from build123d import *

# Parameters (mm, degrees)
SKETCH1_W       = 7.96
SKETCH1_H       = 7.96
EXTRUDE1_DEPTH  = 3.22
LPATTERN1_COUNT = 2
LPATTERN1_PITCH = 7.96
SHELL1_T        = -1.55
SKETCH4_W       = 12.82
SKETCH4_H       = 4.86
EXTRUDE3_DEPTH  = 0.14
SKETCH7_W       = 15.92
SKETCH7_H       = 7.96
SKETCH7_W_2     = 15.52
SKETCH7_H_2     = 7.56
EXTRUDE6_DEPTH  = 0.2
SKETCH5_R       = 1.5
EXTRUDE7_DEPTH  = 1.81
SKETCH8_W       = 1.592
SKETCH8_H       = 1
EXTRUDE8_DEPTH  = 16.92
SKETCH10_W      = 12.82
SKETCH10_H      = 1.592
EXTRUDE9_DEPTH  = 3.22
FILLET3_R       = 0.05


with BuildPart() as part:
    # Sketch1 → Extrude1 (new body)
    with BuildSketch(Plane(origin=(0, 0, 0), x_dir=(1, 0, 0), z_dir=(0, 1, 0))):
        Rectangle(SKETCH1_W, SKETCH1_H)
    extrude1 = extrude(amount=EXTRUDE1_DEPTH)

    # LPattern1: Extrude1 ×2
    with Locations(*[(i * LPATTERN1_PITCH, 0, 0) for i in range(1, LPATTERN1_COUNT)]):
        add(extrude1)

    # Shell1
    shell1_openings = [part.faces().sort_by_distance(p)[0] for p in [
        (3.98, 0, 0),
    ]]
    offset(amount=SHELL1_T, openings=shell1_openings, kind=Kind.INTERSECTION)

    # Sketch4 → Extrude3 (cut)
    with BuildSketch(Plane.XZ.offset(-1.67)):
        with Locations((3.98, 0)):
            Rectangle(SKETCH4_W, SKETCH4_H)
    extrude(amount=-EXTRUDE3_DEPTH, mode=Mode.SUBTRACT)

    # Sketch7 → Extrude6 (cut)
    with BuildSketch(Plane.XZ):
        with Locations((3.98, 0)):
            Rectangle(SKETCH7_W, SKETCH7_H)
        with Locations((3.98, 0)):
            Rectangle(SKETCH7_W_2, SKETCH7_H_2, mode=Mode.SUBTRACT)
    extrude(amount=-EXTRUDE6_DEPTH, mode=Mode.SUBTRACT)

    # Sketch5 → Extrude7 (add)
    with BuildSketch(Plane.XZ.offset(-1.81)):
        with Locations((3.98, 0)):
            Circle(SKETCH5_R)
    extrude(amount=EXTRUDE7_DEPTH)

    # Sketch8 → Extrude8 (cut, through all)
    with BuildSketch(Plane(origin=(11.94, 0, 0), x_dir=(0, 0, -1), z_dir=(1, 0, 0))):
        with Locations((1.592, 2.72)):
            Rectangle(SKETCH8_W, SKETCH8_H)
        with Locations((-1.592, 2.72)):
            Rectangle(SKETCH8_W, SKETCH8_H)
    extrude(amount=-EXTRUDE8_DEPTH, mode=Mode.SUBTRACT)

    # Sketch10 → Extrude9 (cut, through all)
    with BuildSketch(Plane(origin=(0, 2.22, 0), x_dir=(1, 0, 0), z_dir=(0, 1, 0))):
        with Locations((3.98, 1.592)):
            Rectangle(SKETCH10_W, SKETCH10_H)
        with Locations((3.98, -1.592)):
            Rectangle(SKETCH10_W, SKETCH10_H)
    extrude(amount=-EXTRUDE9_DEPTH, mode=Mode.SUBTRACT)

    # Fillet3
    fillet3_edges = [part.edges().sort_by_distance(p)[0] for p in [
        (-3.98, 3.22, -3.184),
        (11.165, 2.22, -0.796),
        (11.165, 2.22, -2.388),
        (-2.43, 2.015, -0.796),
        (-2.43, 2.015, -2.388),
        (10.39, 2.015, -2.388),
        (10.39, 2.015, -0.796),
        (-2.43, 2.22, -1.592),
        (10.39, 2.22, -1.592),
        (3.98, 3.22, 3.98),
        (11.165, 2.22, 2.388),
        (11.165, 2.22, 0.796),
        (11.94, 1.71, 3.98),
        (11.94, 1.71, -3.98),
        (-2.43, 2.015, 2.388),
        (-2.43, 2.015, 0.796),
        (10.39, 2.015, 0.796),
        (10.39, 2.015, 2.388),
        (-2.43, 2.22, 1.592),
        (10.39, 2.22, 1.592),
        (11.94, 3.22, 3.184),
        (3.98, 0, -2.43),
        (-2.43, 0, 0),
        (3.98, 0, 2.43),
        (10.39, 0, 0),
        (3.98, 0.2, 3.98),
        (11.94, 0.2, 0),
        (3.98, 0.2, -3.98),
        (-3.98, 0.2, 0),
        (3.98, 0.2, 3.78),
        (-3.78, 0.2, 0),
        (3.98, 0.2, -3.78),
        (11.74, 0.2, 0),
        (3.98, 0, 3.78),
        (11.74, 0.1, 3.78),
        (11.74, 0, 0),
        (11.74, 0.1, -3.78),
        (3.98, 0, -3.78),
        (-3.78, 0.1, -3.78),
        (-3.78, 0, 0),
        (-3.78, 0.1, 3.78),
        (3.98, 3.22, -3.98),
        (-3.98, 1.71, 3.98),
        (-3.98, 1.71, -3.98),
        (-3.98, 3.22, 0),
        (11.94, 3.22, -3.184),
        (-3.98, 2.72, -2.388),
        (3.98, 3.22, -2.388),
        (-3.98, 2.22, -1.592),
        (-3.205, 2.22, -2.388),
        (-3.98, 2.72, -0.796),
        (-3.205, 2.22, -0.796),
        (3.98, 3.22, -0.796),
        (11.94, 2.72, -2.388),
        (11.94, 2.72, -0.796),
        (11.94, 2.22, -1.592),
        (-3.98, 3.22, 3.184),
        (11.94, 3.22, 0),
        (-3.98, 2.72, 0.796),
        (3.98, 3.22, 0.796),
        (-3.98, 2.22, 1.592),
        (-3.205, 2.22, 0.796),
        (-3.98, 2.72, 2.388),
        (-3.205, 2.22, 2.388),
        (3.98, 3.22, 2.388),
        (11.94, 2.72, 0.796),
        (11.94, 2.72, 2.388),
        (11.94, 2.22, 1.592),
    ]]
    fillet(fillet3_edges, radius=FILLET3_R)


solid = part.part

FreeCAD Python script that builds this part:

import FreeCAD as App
import Part
import Sketcher


def edges_at(feature, points):
    """Names of the edges that pass closest to the given points."""
    edges = feature.Shape.Edges
    near = lambda p: min(range(len(edges)), key=lambda i: edges[i].distToShape(Part.Vertex(*p))[0])
    return sorted({f"Edge{near(p) + 1}" for p in points})


def faces_at(feature, points):
    """Names of the faces that lie closest to the given points."""
    faces = feature.Shape.Faces
    near = lambda p: min(range(len(faces)), key=lambda i: faces[i].distToShape(Part.Vertex(*p))[0])
    return sorted({f"Face{near(p) + 1}" for p in points})


def add_polygon(sketch, points):
    """Adds a closed chain of lines whose ends are joined by coincident constraints."""
    first, n = sketch.GeometryCount, len(points)
    for a, b in zip(points, points[1:] + points[:1]):
        sketch.addGeometry(Part.LineSegment(App.Vector(*a, 0), App.Vector(*b, 0)), False)
    for i in range(n):
        sketch.addConstraint(Sketcher.Constraint("Coincident", first + i, 2, first + (i + 1) % n, 1))

doc = App.newDocument("Part")
body = doc.addObject("PartDesign::Body", "Body")

# Sketch on XZ plane
sketch1 = body.newObject("Sketcher::SketchObject", "Sketch")
sketch1.AttachmentSupport = (doc.getObject("XZ_Plane"), [""])
sketch1.MapMode = "FlatFace"
add_polygon(sketch1, [(-4, -4), (-4, 4), (4, 4), (4, -4)])  # lines 0-3
sketch1.addConstraint(Sketcher.Constraint("Vertical", 0))
sketch1.addConstraint(Sketcher.Constraint("Horizontal", 1))
sketch1.addConstraint(Sketcher.Constraint("Vertical", 2))
sketch1.addConstraint(Sketcher.Constraint("Horizontal", 3))
sketch1.addConstraint(Sketcher.Constraint("Symmetric", 0, 2, 2, 2, -1, 1))
sketch1.addConstraint(Sketcher.Constraint("Equal", 3, 0))
sketch1.addConstraint(Sketcher.Constraint("DistanceX", 1, 1, 1, 2, 7.96))
pad1 = body.newObject("PartDesign::Pad", "Pad")
pad1.Profile = sketch1
pad1.Length = 3.22
pad1.Reversed = True
doc.recompute()

linearpattern = body.newObject("PartDesign::LinearPattern", "LinearPattern")
linearpattern.Originals = [pad1]
linearpattern.Direction = (doc.getObject("X_Axis"), [""])
linearpattern.Mode = "offset"
linearpattern.Offset = 7.96
linearpattern.Occurrences = 2
body.Tip = linearpattern
doc.recompute()

thickness = body.newObject("PartDesign::Thickness", "Thickness")
thickness.Base = (linearpattern, faces_at(linearpattern, [(3.98, 0, 0)]))
thickness.Value = 1.55
thickness.Reversed = True
thickness.Join = "Intersection"

# Sketch on XZ plane
sketch2 = body.newObject("Sketcher::SketchObject", "Sketch001")
sketch2.AttachmentSupport = (doc.getObject("XZ_Plane"), [""])
sketch2.MapMode = "FlatFace"
sketch2.AttachmentOffset = App.Placement(App.Vector(0, 0, -1.67), App.Rotation())
add_polygon(sketch2, [(-2.4, 2.4), (-2.4, -2.4), (10.4, -2.4), (10.4, 2.4)])  # lines 0-3
sketch2.addConstraint(Sketcher.Constraint("Vertical", 0))
sketch2.addConstraint(Sketcher.Constraint("Horizontal", 1))
sketch2.addConstraint(Sketcher.Constraint("Vertical", 2))
sketch2.addConstraint(Sketcher.Constraint("Horizontal", 3))
sketch2.addConstraint(Sketcher.Constraint("DistanceX", 1, 1, 1, 2, 12.82))
sketch2.addConstraint(Sketcher.Constraint("DistanceY", 0, 2, 0, 1, 4.86))
sketch2.addConstraint(Sketcher.Constraint("DistanceX", 0, 2, -1, 1, 2.43))
sketch2.addConstraint(Sketcher.Constraint("DistanceY", 0, 2, -1, 1, 2.43))
pocket1 = body.newObject("PartDesign::Pocket", "Pocket")
pocket1.Profile = sketch2
pocket1.Length = 0.14

# Sketch on XZ plane
sketch3 = body.newObject("Sketcher::SketchObject", "Sketch002")
sketch3.AttachmentSupport = (doc.getObject("XZ_Plane"), [""])
sketch3.MapMode = "FlatFace"
add_polygon(sketch3, [(-4, 4), (-4, -4), (12, -4), (12, 4)])  # lines 0-3
add_polygon(sketch3, [(12, -4), (-4, -4), (-4, 4), (12, 4)])  # lines 4-7
sketch3.addConstraint(Sketcher.Constraint("Vertical", 0))
sketch3.addConstraint(Sketcher.Constraint("Horizontal", 1))
sketch3.addConstraint(Sketcher.Constraint("Vertical", 2))
sketch3.addConstraint(Sketcher.Constraint("Horizontal", 3))
sketch3.addConstraint(Sketcher.Constraint("Horizontal", 4))
sketch3.addConstraint(Sketcher.Constraint("Vertical", 5))
sketch3.addConstraint(Sketcher.Constraint("Horizontal", 6))
sketch3.addConstraint(Sketcher.Constraint("Vertical", 7))
sketch3.addConstraint(Sketcher.Constraint("DistanceX", 1, 1, 1, 2, 15.92))
sketch3.addConstraint(Sketcher.Constraint("DistanceX", 4, 2, 4, 1, 15.52))
sketch3.addConstraint(Sketcher.Constraint("DistanceY", 0, 2, 0, 1, 7.96))
sketch3.addConstraint(Sketcher.Constraint("DistanceY", 5, 1, 5, 2, 7.56))
sketch3.addConstraint(Sketcher.Constraint("DistanceX", 0, 2, 4, 2, 0.2))
sketch3.addConstraint(Sketcher.Constraint("DistanceY", 0, 2, 4, 2, 0.2))
sketch3.addConstraint(Sketcher.Constraint("DistanceX", 0, 2, -1, 1, 3.98))
sketch3.addConstraint(Sketcher.Constraint("DistanceY", 0, 2, -1, 1, 3.98))
pocket2 = body.newObject("PartDesign::Pocket", "Pocket001")
pocket2.Profile = sketch3
pocket2.Length = 0.2

# Sketch on XZ plane
sketch4 = body.newObject("Sketcher::SketchObject", "Sketch003")
sketch4.AttachmentSupport = (doc.getObject("XZ_Plane"), [""])
sketch4.MapMode = "FlatFace"
sketch4.AttachmentOffset = App.Placement(App.Vector(0, 0, -1.81), App.Rotation())
sketch4.addGeometry(Part.Circle(App.Vector(4, 0, 0), App.Vector(0, 0, 1), 1.5), False)
sketch4.addConstraint(Sketcher.Constraint("PointOnObject", 0, 3, -1))
sketch4.addConstraint(Sketcher.Constraint("Diameter", 0, 3.0))
sketch4.addConstraint(Sketcher.Constraint("DistanceX", -1, 1, 0, 3, 3.98))
pad2 = body.newObject("PartDesign::Pad", "Pad001")
pad2.Profile = sketch4
pad2.Length = 1.81

# Sketch on YZ plane
sketch5 = body.newObject("Sketcher::SketchObject", "Sketch004")
sketch5.AttachmentSupport = (doc.getObject("YZ_Plane"), [""])
sketch5.MapMode = "FlatFace"
sketch5.AttachmentOffset = App.Placement(App.Vector(0, 0, 11.94), App.Rotation())
add_polygon(sketch5, [(3.2, -0.8), (2.2, -0.8), (2.2, -2.4), (3.2, -2.4)])  # lines 0-3
add_polygon(sketch5, [(3.2, 2.4), (2.2, 2.4), (2.2, 0.8), (3.2, 0.8)])  # lines 4-7
sketch5.addConstraint(Sketcher.Constraint("Horizontal", 0))
sketch5.addConstraint(Sketcher.Constraint("Vertical", 1))
sketch5.addConstraint(Sketcher.Constraint("Horizontal", 2))
sketch5.addConstraint(Sketcher.Constraint("Vertical", 3))
sketch5.addConstraint(Sketcher.Constraint("Horizontal", 4))
sketch5.addConstraint(Sketcher.Constraint("Vertical", 5))
sketch5.addConstraint(Sketcher.Constraint("Horizontal", 6))
sketch5.addConstraint(Sketcher.Constraint("Vertical", 7))
sketch5.addConstraint(Sketcher.Constraint("Symmetric", 1, 2, 4, 2, -1))
sketch5.addConstraint(Sketcher.Constraint("Symmetric", 3, 2, 6, 2, -1))
sketch5.addConstraint(Sketcher.Constraint("DistanceX", 0, 2, 0, 1, 1.0))
sketch5.addConstraint(Sketcher.Constraint("DistanceY", 1, 2, 1, 1, 1.592))
sketch5.addConstraint(Sketcher.Constraint("DistanceX", -1, 1, 0, 2, 2.22))
sketch5.addConstraint(Sketcher.Constraint("DistanceY", 0, 2, -1, 1, 0.796))
pocket3 = body.newObject("PartDesign::Pocket", "Pocket002")
pocket3.Profile = sketch5
pocket3.Type = "ThroughAll"

# Sketch on XZ plane
sketch6 = body.newObject("Sketcher::SketchObject", "Sketch005")
sketch6.AttachmentSupport = (doc.getObject("XZ_Plane"), [""])
sketch6.MapMode = "FlatFace"
sketch6.AttachmentOffset = App.Placement(App.Vector(0, 0, -2.22), App.Rotation())
add_polygon(sketch6, [(-2.4, -2.4), (-2.4, -0.8), (10.4, -0.8), (10.4, -2.4)])  # lines 0-3
add_polygon(sketch6, [(-2.4, 0.8), (-2.4, 2.4), (10.4, 2.4), (10.4, 0.8)])  # lines 4-7
sketch6.addConstraint(Sketcher.Constraint("Vertical", 0))
sketch6.addConstraint(Sketcher.Constraint("Horizontal", 1))
sketch6.addConstraint(Sketcher.Constraint("Vertical", 2))
sketch6.addConstraint(Sketcher.Constraint("Horizontal", 3))
sketch6.addConstraint(Sketcher.Constraint("Vertical", 4))
sketch6.addConstraint(Sketcher.Constraint("Horizontal", 5))
sketch6.addConstraint(Sketcher.Constraint("Vertical", 6))
sketch6.addConstraint(Sketcher.Constraint("Horizontal", 7))
sketch6.addConstraint(Sketcher.Constraint("Symmetric", 3, 2, 4, 2, -1))
sketch6.addConstraint(Sketcher.Constraint("Symmetric", 1, 2, 6, 2, -1))
sketch6.addConstraint(Sketcher.Constraint("DistanceX", 1, 1, 1, 2, 12.82))
sketch6.addConstraint(Sketcher.Constraint("DistanceY", 0, 1, 0, 2, 1.592))
sketch6.addConstraint(Sketcher.Constraint("DistanceX", 0, 2, -1, 1, 2.43))
sketch6.addConstraint(Sketcher.Constraint("DistanceY", 0, 2, -1, 1, 0.796))
pocket4 = body.newObject("PartDesign::Pocket", "Pocket003")
pocket4.Profile = sketch6
pocket4.Type = "ThroughAll"
pocket4.Reversed = True
doc.recompute()

fillet = body.newObject("PartDesign::Fillet", "Fillet")
fillet.Base = (pocket4, edges_at(pocket4, [
    (-3.98, 3.22, -3.184),
    (11.165, 2.22, -0.796),
    (11.165, 2.22, -2.388),
    (-2.43, 2.015, -0.796),
    (-2.43, 2.015, -2.388),
    (10.39, 2.015, -2.388),
    (10.39, 2.015, -0.796),
    (-2.43, 2.22, -1.592),
    (10.39, 2.22, -1.592),
    (3.98, 3.22, 3.98),
    (11.165, 2.22, 2.388),
    (11.165, 2.22, 0.796),
    (11.94, 1.71, 3.98),
    (11.94, 1.71, -3.98),
    (-2.43, 2.015, 2.388),
    (-2.43, 2.015, 0.796),
    (10.39, 2.015, 0.796),
    (10.39, 2.015, 2.388),
    (-2.43, 2.22, 1.592),
    (10.39, 2.22, 1.592),
    (11.94, 3.22, 3.184),
    (3.98, 0, -2.43),
    (-2.43, 0, 0),
    (3.98, 0, 2.43),
    (10.39, 0, 0),
    (3.98, 0.2, 3.98),
    (11.94, 0.2, 0),
    (3.98, 0.2, -3.98),
    (-3.98, 0.2, 0),
    (3.98, 0.2, 3.78),
    (-3.78, 0.2, 0),
    (3.98, 0.2, -3.78),
    (11.74, 0.2, 0),
    (3.98, 0, 3.78),
    (11.74, 0.1, 3.78),
    (11.74, 0, 0),
    (11.74, 0.1, -3.78),
    (3.98, 0, -3.78),
    (-3.78, 0.1, -3.78),
    (-3.78, 0, 0),
    (-3.78, 0.1, 3.78),
    (3.98, 3.22, -3.98),
    (-3.98, 1.71, 3.98),
    (-3.98, 1.71, -3.98),
    (-3.98, 3.22, 0),
    (11.94, 3.22, -3.184),
    (-3.98, 2.72, -2.388),
    (3.98, 3.22, -2.388),
    (-3.98, 2.22, -1.592),
    (-3.205, 2.22, -2.388),
    (-3.98, 2.72, -0.796),
    (-3.205, 2.22, -0.796),
    (3.98, 3.22, -0.796),
    (11.94, 2.72, -2.388),
    (11.94, 2.72, -0.796),
    (11.94, 2.22, -1.592),
    (-3.98, 3.22, 3.184),
    (11.94, 3.22, 0),
    (-3.98, 2.72, 0.796),
    (3.98, 3.22, 0.796),
    (-3.98, 2.22, 1.592),
    (-3.205, 2.22, 0.796),
    (-3.98, 2.72, 2.388),
    (-3.205, 2.22, 2.388),
    (3.98, 3.22, 2.388),
    (11.94, 2.72, 0.796),
    (11.94, 2.72, 2.388),
    (11.94, 2.22, 1.592),
]))
fillet.Radius = 0.05

doc.recompute()
